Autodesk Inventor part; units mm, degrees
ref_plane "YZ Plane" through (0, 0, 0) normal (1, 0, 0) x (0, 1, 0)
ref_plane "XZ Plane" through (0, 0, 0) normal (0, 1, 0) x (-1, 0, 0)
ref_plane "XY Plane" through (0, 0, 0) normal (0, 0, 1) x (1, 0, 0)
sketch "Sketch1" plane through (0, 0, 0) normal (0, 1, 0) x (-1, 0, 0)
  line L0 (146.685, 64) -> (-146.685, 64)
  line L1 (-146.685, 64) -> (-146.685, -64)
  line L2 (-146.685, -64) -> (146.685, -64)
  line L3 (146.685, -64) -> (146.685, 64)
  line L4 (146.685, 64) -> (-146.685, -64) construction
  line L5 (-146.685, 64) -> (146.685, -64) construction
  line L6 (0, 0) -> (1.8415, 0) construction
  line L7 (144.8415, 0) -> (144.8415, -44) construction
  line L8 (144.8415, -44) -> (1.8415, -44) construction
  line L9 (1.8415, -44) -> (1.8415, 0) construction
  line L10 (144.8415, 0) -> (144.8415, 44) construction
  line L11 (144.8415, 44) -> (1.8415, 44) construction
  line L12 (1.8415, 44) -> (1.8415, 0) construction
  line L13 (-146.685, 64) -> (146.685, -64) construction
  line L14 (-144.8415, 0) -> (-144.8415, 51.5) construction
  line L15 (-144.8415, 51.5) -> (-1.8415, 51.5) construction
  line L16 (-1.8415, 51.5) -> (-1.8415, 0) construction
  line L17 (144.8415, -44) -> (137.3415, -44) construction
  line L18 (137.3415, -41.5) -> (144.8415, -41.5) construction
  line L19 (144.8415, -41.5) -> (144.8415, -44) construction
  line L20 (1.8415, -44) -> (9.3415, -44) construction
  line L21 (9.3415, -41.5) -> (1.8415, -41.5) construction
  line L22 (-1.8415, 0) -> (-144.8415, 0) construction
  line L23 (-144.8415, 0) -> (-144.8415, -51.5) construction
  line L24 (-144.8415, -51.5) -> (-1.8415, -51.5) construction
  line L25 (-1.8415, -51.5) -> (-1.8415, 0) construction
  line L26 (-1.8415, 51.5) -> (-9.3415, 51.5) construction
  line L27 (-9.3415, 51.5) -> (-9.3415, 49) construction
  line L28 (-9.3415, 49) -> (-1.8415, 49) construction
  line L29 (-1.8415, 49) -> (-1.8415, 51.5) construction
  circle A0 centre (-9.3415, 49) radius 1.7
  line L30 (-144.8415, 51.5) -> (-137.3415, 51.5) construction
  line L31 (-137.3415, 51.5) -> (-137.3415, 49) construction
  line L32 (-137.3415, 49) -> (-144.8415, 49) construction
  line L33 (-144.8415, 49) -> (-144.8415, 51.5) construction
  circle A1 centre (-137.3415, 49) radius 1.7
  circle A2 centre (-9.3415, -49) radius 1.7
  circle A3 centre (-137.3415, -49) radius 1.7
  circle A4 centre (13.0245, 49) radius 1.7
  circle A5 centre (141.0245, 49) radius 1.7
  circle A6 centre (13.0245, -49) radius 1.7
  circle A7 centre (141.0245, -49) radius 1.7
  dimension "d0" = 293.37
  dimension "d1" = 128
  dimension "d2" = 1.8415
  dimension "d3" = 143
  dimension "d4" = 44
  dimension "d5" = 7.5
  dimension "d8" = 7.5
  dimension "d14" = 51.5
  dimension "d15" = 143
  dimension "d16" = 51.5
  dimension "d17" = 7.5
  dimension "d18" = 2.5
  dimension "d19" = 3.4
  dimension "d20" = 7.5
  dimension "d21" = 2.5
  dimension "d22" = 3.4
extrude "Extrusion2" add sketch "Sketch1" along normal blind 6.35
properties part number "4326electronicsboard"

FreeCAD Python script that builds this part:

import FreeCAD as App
import Part
import Sketcher
from FreeCAD import Vector


def add_polygon(sketch, points):
    """Adds a closed chain of lines whose ends are joined by coincident constraints."""
    first, n = sketch.GeometryCount, len(points)
    for a, b in zip(points, points[1:] + points[:1]):
        sketch.addGeometry(Part.LineSegment(App.Vector(*a, 0), App.Vector(*b, 0)), False)
    for i in range(n):
        sketch.addConstraint(Sketcher.Constraint("Coincident", first + i, 2, first + (i + 1) % n, 1))

doc = App.newDocument("Part")
body = doc.addObject("PartDesign::Body", "Body")

# Sketch on XZ plane
sketch1 = body.newObject("Sketcher::SketchObject", "Sketch")
sketch1.AttachmentSupport = (doc.getObject("XZ_Plane"), [""])
sketch1.MapMode = "FlatFace"
add_polygon(sketch1, [(-146.7, -64), (-146.7, 64), (146.7, 64), (146.7, -64)])  # lines 0-3
sketch1.addGeometry(Part.Circle(Vector(137.3, -49, 0), Vector(0, 0, 1), 1.7), False)  # 4
sketch1.addGeometry(Part.Circle(Vector(9.3, -49, 0), Vector(0, 0, 1), 1.7), False)  # 5
sketch1.addGeometry(Part.Circle(Vector(-13, -49, 0), Vector(0, 0, 1), 1.7), False)  # 6
sketch1.addGeometry(Part.Circle(Vector(-141, -49, 0), Vector(0, 0, 1), 1.7), False)  # 7
sketch1.addGeometry(Part.Circle(Vector(137.3, 49, 0), Vector(0, 0, 1), 1.7), False)  # 8
sketch1.addGeometry(Part.Circle(Vector(9.3, 49, 0), Vector(0, 0, 1), 1.7), False)  # 9
sketch1.addGeometry(Part.Circle(Vector(-13, 49, 0), Vector(0, 0, 1), 1.7), False)  # 10
sketch1.addGeometry(Part.Circle(Vector(-141, 49, 0), Vector(0, 0, 1), 1.7), False)  # 11
sketch1.addConstraint([
    Sketcher.Constraint("Vertical", 0),
    Sketcher.Constraint("Horizontal", 1),
    Sketcher.Constraint("Vertical", 2),
    Sketcher.Constraint("Horizontal", 3),
    Sketcher.Constraint("Equal", 4, 5),
    Sketcher.Constraint("Equal", 5, 6),
    Sketcher.Constraint("Equal", 6, 7),
    Sketcher.Constraint("Equal", 7, 8),
    Sketcher.Constraint("Equal", 8, 9),
    Sketcher.Constraint("Equal", 9, 10),
    Sketcher.Constraint("Equal", 10, 11),
    Sketcher.Constraint("Symmetric", 0, 2, 2, 2, -1, 1),
    Sketcher.Constraint("Symmetric", 4, 3, 8, 3, -1),
    Sketcher.Constraint("Symmetric", 5, 3, 9, 3, -1),
    Sketcher.Constraint("Symmetric", 6, 3, 10, 3, -1),
    Sketcher.Constraint("Symmetric", 7, 3, 11, 3, -1),
    Sketcher.Constraint("Horizontal", 4, 3, 5, 3),
    Sketcher.Constraint("Horizontal", 5, 3, 6, 3),
    Sketcher.Constraint("Horizontal", 6, 3, 7, 3),
    Sketcher.Constraint("Diameter", 4, 3.4),
    Sketcher.Constraint("DistanceY", 0, 1, 0, 2, 128.0),
    Sketcher.Constraint("DistanceX", 5, 3, 4, 3, 128.0),
    Sketcher.Constraint("DistanceX", 7, 3, 6, 3, 128.0),
    Sketcher.Constraint("DistanceX", 1, 1, 1, 2, 293.37),
    Sketcher.Constraint("DistanceY", 4, 3, -1, 1, 49.0),
    Sketcher.Constraint("DistanceX", 6, 3, 5, 3, 22.366),
    Sketcher.Constraint("DistanceX", -1, 1, 4, 3, 137.3415),
])
pad1 = body.newObject("PartDesign::Pad", "Pad")
pad1.Profile = sketch1
pad1.Length = 6.35
pad1.Reversed = True

doc.recompute()
